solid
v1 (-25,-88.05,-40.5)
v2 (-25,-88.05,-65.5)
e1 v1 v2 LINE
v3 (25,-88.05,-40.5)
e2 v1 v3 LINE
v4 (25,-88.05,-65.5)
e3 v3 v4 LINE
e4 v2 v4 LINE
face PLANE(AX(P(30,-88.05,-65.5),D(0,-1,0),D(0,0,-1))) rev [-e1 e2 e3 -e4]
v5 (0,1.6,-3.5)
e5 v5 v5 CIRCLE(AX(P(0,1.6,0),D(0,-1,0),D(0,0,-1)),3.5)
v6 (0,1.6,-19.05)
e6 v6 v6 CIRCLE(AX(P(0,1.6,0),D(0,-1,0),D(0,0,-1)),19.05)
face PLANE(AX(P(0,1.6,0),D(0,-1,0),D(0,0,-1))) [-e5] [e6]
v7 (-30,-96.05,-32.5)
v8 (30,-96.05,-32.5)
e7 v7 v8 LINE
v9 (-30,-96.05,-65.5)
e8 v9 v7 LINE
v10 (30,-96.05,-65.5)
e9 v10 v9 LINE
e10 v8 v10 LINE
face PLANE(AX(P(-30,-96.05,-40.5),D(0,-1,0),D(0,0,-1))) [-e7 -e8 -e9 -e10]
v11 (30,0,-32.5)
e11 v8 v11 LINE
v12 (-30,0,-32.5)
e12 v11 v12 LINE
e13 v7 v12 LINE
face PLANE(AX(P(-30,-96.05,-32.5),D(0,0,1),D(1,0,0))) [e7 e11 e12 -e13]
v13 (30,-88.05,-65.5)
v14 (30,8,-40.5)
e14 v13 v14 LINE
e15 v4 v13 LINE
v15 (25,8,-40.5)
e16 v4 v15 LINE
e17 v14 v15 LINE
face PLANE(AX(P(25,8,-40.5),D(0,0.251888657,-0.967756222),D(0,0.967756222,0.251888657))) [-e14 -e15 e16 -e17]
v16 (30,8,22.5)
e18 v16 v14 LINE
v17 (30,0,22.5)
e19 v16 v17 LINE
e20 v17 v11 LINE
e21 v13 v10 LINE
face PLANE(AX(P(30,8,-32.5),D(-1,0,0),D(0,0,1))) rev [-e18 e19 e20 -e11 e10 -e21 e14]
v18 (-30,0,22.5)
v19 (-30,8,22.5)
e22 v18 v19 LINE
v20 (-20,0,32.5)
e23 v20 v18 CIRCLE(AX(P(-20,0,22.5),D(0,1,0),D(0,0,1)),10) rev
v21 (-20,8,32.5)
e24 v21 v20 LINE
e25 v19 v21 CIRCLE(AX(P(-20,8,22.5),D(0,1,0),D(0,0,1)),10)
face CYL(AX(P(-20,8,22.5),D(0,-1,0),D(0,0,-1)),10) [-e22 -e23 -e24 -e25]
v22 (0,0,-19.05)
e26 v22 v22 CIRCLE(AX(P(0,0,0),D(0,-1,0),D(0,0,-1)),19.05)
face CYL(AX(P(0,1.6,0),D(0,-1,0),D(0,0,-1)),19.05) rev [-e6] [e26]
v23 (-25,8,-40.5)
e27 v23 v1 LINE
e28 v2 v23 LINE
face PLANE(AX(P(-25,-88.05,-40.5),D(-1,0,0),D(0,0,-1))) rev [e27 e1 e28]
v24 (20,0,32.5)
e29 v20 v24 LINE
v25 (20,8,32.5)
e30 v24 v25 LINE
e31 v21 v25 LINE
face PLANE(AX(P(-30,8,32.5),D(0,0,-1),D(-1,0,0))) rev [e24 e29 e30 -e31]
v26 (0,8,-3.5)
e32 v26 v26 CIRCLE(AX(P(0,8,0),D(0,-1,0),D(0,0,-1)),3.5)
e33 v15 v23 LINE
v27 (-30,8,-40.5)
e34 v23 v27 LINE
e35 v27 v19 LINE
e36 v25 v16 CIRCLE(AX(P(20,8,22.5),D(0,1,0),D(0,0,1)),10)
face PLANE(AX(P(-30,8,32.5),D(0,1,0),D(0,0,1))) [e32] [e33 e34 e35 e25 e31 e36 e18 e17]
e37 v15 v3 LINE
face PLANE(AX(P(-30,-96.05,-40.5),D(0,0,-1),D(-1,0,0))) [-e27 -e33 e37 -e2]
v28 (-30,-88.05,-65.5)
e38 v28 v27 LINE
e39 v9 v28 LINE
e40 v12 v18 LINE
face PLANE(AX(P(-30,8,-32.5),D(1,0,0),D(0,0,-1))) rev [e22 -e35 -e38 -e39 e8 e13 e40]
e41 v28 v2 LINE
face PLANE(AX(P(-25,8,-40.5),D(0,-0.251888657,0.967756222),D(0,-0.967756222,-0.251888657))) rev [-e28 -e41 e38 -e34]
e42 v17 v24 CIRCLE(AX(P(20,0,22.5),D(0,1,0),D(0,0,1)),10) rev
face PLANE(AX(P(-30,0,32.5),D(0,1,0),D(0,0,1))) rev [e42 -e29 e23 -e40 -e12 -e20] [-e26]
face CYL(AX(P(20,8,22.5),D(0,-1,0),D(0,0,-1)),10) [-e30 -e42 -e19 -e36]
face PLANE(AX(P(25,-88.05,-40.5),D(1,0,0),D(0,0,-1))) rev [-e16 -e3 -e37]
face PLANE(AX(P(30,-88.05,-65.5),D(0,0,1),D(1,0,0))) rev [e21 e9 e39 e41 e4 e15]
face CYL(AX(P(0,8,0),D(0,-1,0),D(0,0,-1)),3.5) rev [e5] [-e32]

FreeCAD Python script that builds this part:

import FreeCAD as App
import Part
import Sketcher
from FreeCAD import Vector


def edges_at(feature, points):
    """Names of the edges that pass closest to the given points."""
    edges = feature.Shape.Edges
    near = lambda p: min(range(len(edges)), key=lambda i: edges[i].distToShape(Part.Vertex(*p))[0])
    return sorted({f"Edge{near(p) + 1}" for p in points})

doc = App.newDocument("Part")
body = doc.addObject("PartDesign::Body", "Body")

sketch1 = doc.addObject("Sketcher::SketchObject", "Sketch")
body.addObject(sketch1)
sketch1.AttachmentSupport = (doc.XZ_Plane, [""])
sketch1.MapMode = "FlatFace"
sketch1.addGeometry([
    Part.LineSegment(Vector(-30, -32, 0), Vector(-30, 32, 0)),
    Part.LineSegment(Vector(-30, 32, 0), Vector(30, 32, 0)),
    Part.LineSegment(Vector(30, 32, 0), Vector(30, -32, 0)),
    Part.LineSegment(Vector(30, -32, 0), Vector(-30, -32, 0)),
], False)
sketch1.addConstraint([
    Sketcher.Constraint("Coincident", 0, 2, 1, 1),
    Sketcher.Constraint("Coincident", 1, 2, 2, 1),
    Sketcher.Constraint("Coincident", 2, 2, 3, 1),
    Sketcher.Constraint("Coincident", 3, 2, 0, 1),
    Sketcher.Constraint("Vertical", 0),
    Sketcher.Constraint("Horizontal", 1),
    Sketcher.Constraint("Vertical", 2),
    Sketcher.Constraint("Horizontal", 3),
    Sketcher.Constraint("Symmetric", 0, 2, 2, 2, -1, 1),
    Sketcher.Constraint("DistanceX", 1, 1, 1, 2, 60.0),
    Sketcher.Constraint("DistanceY", 0, 1, 0, 2, 65.0),
])
pad1 = doc.addObject("PartDesign::Pad", "Pad")
body.addObject(pad1)
pad1.Profile = sketch1
pad1.Length = 8
pad1.Reversed = True

sketch2 = doc.addObject("Sketcher::SketchObject", "Sketch001")
body.addObject(sketch2)
sketch2.AttachmentSupport = (doc.XZ_Plane, [""])
sketch2.MapMode = "FlatFace"
sketch2.addGeometry(Part.Circle(Vector(0, 0, 0), Vector(0, 0, 1), 19), False)
sketch2.addConstraint([
    Sketcher.Constraint("Coincident", 0, 3, -1, 1),
    Sketcher.Constraint("Diameter", 0, 38.1),
])
pocket1 = doc.addObject("PartDesign::Pocket", "Pocket")
body.addObject(pocket1)
pocket1.Profile = sketch2
pocket1.Length = 1.6

sketch3 = doc.addObject("Sketcher::SketchObject", "Sketch002")
body.addObject(sketch3)
sketch3.AttachmentSupport = (doc.XZ_Plane, [""])
sketch3.MapMode = "FlatFace"
sketch3.AttachmentOffset = App.Placement(Vector(0, 0, -1.6), App.Rotation())
sketch3.addGeometry(Part.Circle(Vector(0, 0, 0), Vector(0, 0, 1), 3.5), False)
sketch3.addConstraint([
    Sketcher.Constraint("Coincident", 0, 3, -1, 1),
    Sketcher.Constraint("Diameter", 0, 7.0),
])
pocket2 = doc.addObject("PartDesign::Pocket", "Pocket001")
body.addObject(pocket2)
pocket2.Profile = sketch3
pocket2.Type = "ThroughAll"

sketch4 = doc.addObject("Sketcher::SketchObject", "Sketch003")
body.addObject(sketch4)
sketch4.AttachmentSupport = (doc.XZ_Plane, [""])
sketch4.MapMode = "FlatFace"
sketch4.AttachmentOffset = App.Placement(Vector(0, 0, -8), App.Rotation())
sketch4.addGeometry([
    Part.LineSegment(Vector(-30, -40, 0), Vector(-30, -32, 0)),
    Part.LineSegment(Vector(-30, -32, 0), Vector(30, -32, 0)),
    Part.LineSegment(Vector(30, -32, 0), Vector(30, -40, 0)),
    Part.LineSegment(Vector(30, -40, 0), Vector(-30, -40, 0)),
], False)
sketch4.addConstraint([
    Sketcher.Constraint("Coincident", 0, 2, 1, 1),
    Sketcher.Constraint("Coincident", 1, 2, 2, 1),
    Sketcher.Constraint("Coincident", 2, 2, 3, 1),
    Sketcher.Constraint("Coincident", 3, 2, 0, 1),
    Sketcher.Constraint("Vertical", 0),
    Sketcher.Constraint("Horizontal", 1),
    Sketcher.Constraint("Vertical", 2),
    Sketcher.Constraint("Horizontal", 3),
    Sketcher.Constraint("DistanceX", 1, 1, 1, 2, 60.0),
    Sketcher.Constraint("DistanceY", 0, 1, 0, 2, 8.0),
    Sketcher.Constraint("DistanceX", 0, 2, -1, 1, 30.0),
    Sketcher.Constraint("DistanceY", 0, 2, -1, 1, 32.5),
])
pad2 = doc.addObject("PartDesign::Pad", "Pad001")
body.addObject(pad2)
pad2.Profile = sketch4
pad2.Length = 104.05
doc.recompute()

fillet = doc.addObject("PartDesign::Fillet", "Fillet")
body.addObject(fillet)
fillet.Base = (pad2, edges_at(pad2, [(-30, 4, 32.5), (30, 4, 32.5)]))
fillet.Radius = 10

sketch5 = doc.addObject("Sketcher::SketchObject", "Sketch004")
body.addObject(sketch5)
sketch5.AttachmentSupport = (doc.XY_Plane, [""])
sketch5.MapMode = "FlatFace"
sketch5.AttachmentOffset = App.Placement(Vector(0, 0, -40.5), App.Rotation())
sketch5.addGeometry([
    Part.LineSegment(Vector(30, -88, 0), Vector(30, -96, 0)),
    Part.LineSegment(Vector(30, -96, 0), Vector(-30, -96, 0)),
    Part.LineSegment(Vector(-30, -96, 0), Vector(-30, -88, 0)),
    Part.LineSegment(Vector(-30, -88, 0), Vector(30, -88, 0)),
], False)
sketch5.addConstraint([
    Sketcher.Constraint("Coincident", 0, 2, 1, 1),
    Sketcher.Constraint("Coincident", 1, 2, 2, 1),
    Sketcher.Constraint("Coincident", 2, 2, 3, 1),
    Sketcher.Constraint("Coincident", 3, 2, 0, 1),
    Sketcher.Constraint("Vertical", 0),
    Sketcher.Constraint("Horizontal", 1),
    Sketcher.Constraint("Vertical", 2),
    Sketcher.Constraint("Horizontal", 3),
    Sketcher.Constraint("DistanceX", 1, 2, 1, 1, 60.0),
    Sketcher.Constraint("DistanceY", 0, 2, 0, 1, 8.0),
    Sketcher.Constraint("DistanceX", -1, 1, 0, 2, 30.0),
    Sketcher.Constraint("DistanceY", 0, 2, -1, 1, 96.05),
])
pad3 = doc.addObject("PartDesign::Pad", "Pad002")
body.addObject(pad3)
pad3.Profile = sketch5
pad3.Length = 25
pad3.Reversed = True

sketch6 = doc.addObject("Sketcher::SketchObject", "Sketch005")
body.addObject(sketch6)
sketch6.AttachmentSupport = (doc.YZ_Plane, [""])
sketch6.MapMode = "FlatFace"
sketch6.AttachmentOffset = App.Placement(Vector(0, 0, 30), App.Rotation())
sketch6.addGeometry([
    Part.LineSegment(Vector(-88, -66, 0), Vector(8, -40, 0)),
    Part.LineSegment(Vector(8, -40, 0), Vector(-88, -40, 0)),
    Part.LineSegment(Vector(-88, -40, 0), Vector(-88, -66, 0)),
], False)
sketch6.addConstraint([
    Sketcher.Constraint("Coincident", 0, 2, 1, 1),
    Sketcher.Constraint("Coincident", 1, 2, 2, 1),
    Sketcher.Constraint("Coincident", 2, 2, 0, 1),
    Sketcher.Constraint("Horizontal", 1),
    Sketcher.Constraint("Vertical", 2),
    Sketcher.Constraint("DistanceY", 2, 2, 2, 1, 25.0),
    Sketcher.Constraint("DistanceX", -1, 1, 0, 2, 8.0),
    Sketcher.Constraint("DistanceX", 1, 2, 1, 1, 96.05),
    Sketcher.Constraint("DistanceY", 0, 2, -1, 1, 40.5),
])
pad4 = doc.addObject("PartDesign::Pad", "Pad003")
body.addObject(pad4)
pad4.Profile = sketch6
pad4.Length = 5
pad4.Reversed = True
doc.recompute()

mirrored = doc.addObject("PartDesign::Mirrored", "Mirrored")
body.addObject(mirrored)
mirrored.Originals = [pad4]
mirrored.MirrorPlane = (doc.YZ_Plane, [""])
body.Tip = mirrored

doc.recompute()
